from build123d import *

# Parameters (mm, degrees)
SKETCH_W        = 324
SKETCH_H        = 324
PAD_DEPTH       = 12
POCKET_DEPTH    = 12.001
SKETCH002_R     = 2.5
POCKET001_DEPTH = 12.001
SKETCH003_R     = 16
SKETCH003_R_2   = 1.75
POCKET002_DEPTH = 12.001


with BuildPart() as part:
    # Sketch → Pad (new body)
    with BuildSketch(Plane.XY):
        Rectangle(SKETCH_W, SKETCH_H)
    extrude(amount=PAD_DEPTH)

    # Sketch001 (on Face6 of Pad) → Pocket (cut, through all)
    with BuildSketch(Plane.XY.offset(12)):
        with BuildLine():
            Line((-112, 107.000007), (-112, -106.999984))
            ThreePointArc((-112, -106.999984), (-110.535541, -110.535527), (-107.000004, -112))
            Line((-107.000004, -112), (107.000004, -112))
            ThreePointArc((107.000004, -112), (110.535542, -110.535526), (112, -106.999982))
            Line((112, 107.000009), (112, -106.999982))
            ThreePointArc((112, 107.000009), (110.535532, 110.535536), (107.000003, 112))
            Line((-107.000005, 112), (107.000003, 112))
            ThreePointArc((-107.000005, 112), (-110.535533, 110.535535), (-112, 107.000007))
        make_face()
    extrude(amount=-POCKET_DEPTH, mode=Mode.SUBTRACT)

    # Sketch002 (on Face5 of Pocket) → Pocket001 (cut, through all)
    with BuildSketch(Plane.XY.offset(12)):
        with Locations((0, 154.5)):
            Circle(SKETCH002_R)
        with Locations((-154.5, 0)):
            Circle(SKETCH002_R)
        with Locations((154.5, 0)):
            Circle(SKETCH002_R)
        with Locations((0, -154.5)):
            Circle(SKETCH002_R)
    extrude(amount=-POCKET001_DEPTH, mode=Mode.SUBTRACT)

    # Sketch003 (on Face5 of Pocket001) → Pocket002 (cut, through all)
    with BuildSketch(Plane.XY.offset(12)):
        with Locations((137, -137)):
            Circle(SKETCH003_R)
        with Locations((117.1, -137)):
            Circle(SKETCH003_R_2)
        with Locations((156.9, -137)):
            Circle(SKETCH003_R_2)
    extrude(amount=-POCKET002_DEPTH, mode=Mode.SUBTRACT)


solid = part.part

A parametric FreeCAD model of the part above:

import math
import FreeCAD as App
import Part
import Sketcher

V = App.Vector

doc = App.newDocument("Part")
body = doc.addObject("PartDesign::Body", "Body")

sketch1 = body.newObject("Sketcher::SketchObject", "Sketch")
sketch1.AttachmentSupport = (doc.getObject("XY_Plane"), [""])
sketch1.MapMode = "FlatFace"
sketch1.addGeometry([
    Part.LineSegment(V(-162, 162, 0), V(-162, -162, 0)),
    Part.LineSegment(V(-162, -162, 0), V(162, -162, 0)),
    Part.LineSegment(V(162, -162, 0), V(162, 162, 0)),
    Part.LineSegment(V(162, 162, 0), V(-162, 162, 0)),
], False)
sketch1.addConstraint([
    Sketcher.Constraint("Coincident", 0, 2, 1, 1),
    Sketcher.Constraint("Coincident", 1, 2, 2, 1),
    Sketcher.Constraint("Coincident", 2, 2, 3, 1),
    Sketcher.Constraint("Coincident", 3, 2, 0, 1),
    Sketcher.Constraint("Vertical", 0),
    Sketcher.Constraint("Horizontal", 1),
    Sketcher.Constraint("Vertical", 2),
    Sketcher.Constraint("Horizontal", 3),
    Sketcher.Constraint("Symmetric", 0, 2, 2, 2, -1, 1),
    Sketcher.Constraint("Equal", 3, 0),
    Sketcher.Constraint("DistanceX", 1, 1, 1, 2, 324.0),
])
pad1 = body.newObject("PartDesign::Pad", "Pad")
pad1.Profile = sketch1
pad1.Length = 12

sketch2 = body.newObject("Sketcher::SketchObject", "Sketch001")
sketch2.AttachmentSupport = (doc.getObject("XY_Plane"), [""])
sketch2.MapMode = "FlatFace"
sketch2.AttachmentOffset = App.Placement(V(0, 0, 12), App.Rotation())
sketch2.addGeometry([
    Part.LineSegment(V(-112, 107.000007, 0), V(-112, -106.999984, 0)),
    Part.ArcOfCircle(Part.Circle(V(-107, -107, 0), V(0, 0, 1), 5), math.radians(179.999813), math.radians(269.999958)),
    Part.LineSegment(V(-107.000004, -112, 0), V(107.000004, -112, 0)),
    Part.ArcOfCircle(Part.Circle(V(107, -107, 0), V(0, 0, 1), 5), math.radians(-89.999958), math.radians(0.00021)),
    Part.LineSegment(V(112, -106.999982, 0), V(112, 107.000009, 0)),
    Part.ArcOfCircle(Part.Circle(V(107, 107, 0), V(0, 0, 1), 5), math.radians(0.000099), math.radians(89.999969)),
    Part.LineSegment(V(107.000003, 112, 0), V(-107.000005, 112, 0)),
    Part.ArcOfCircle(Part.Circle(V(-107, 107, 0), V(0, 0, 1), 5), math.radians(90.000054), math.radians(179.999923)),
], False)
sketch2.addConstraint([
    Sketcher.Constraint("Coincident", 0, 2, 1, 1),
    Sketcher.Constraint("Tangent", 1, 2, 2, 1),
    Sketcher.Constraint("Tangent", 2, 2, 3, 1),
    Sketcher.Constraint("Coincident", 3, 2, 4, 1),
    Sketcher.Constraint("Tangent", 4, 2, 5, 1),
    Sketcher.Constraint("Tangent", 5, 2, 6, 1),
    Sketcher.Constraint("Tangent", 6, 2, 7, 1),
    Sketcher.Constraint("Tangent", 7, 2, 0, 1),
    Sketcher.Constraint("Vertical", 0),
    Sketcher.Constraint("Horizontal", 2),
    Sketcher.Constraint("Vertical", 4),
    Sketcher.Constraint("Horizontal", 6),
    Sketcher.Constraint("Equal", 1, 3),
    Sketcher.Constraint("Equal", 3, 5),
    Sketcher.Constraint("Equal", 5, 7),
    Sketcher.Constraint("Symmetric", 1, 3, 5, 3, -1, 1),
    Sketcher.Constraint("Horizontal", 0, 2, 3, 2),
    Sketcher.Constraint("Radius", 1, 5.0),
    Sketcher.Constraint("DistanceX", 1, 3, -1, 1, 107.0),
    Sketcher.Constraint("DistanceY", 1, 3, -1, 1, 107.0),
    Sketcher.Constraint("DistanceY", 0, 2, 0, 1, 213.999991),
])
pocket1 = body.newObject("PartDesign::Pocket", "Pocket")
pocket1.Profile = sketch2
pocket1.Type = "ThroughAll"

sketch3 = body.newObject("Sketcher::SketchObject", "Sketch002")
sketch3.AttachmentSupport = (doc.getObject("XY_Plane"), [""])
sketch3.MapMode = "FlatFace"
sketch3.AttachmentOffset = App.Placement(V(0, 0, 12), App.Rotation())
sketch3.addGeometry([
    Part.Circle(V(0, 154.5, 0), V(0, 0, 1), 2.5),
    Part.Circle(V(-154.5, 0, 0), V(0, 0, 1), 2.5),
    Part.Circle(V(154.5, 0, 0), V(0, 0, 1), 2.5),
    Part.Circle(V(0, -154.5, 0), V(0, 0, 1), 2.5),
], False)
sketch3.addConstraint([
    Sketcher.Constraint("Equal", 0, 1),
    Sketcher.Constraint("Equal", 1, 2),
    Sketcher.Constraint("Equal", 2, 3),
    Sketcher.Constraint("Symmetric", 1, 3, 2, 3, -1, 1),
    Sketcher.Constraint("Symmetric", 0, 3, 3, 3, -1, 1),
    Sketcher.Constraint("PointOnObject", 0, 3, -2),
    Sketcher.Constraint("PointOnObject", 1, 3, -1),
    Sketcher.Constraint("Diameter", 0, 5.0),
    Sketcher.Constraint("DistanceX", 1, 3, 2, 3, 309.0),
    Sketcher.Constraint("DistanceY", 3, 3, 0, 3, 309.0),
])
pocket2 = body.newObject("PartDesign::Pocket", "Pocket001")
pocket2.Profile = sketch3
pocket2.Type = "ThroughAll"

sketch4 = body.newObject("Sketcher::SketchObject", "Sketch003")
sketch4.AttachmentSupport = (doc.getObject("XY_Plane"), [""])
sketch4.MapMode = "FlatFace"
sketch4.AttachmentOffset = App.Placement(V(0, 0, 12), App.Rotation())
sketch4.addGeometry([
    Part.Circle(V(137, -137, 0), V(0, 0, 1), 16),
    Part.Circle(V(117.1, -137, 0), V(0, 0, 1), 1.75),
    Part.Circle(V(156.9, -137, 0), V(0, 0, 1), 1.75),
], False)
sketch4.addConstraint([
    Sketcher.Constraint("Equal", 1, 2),
    Sketcher.Constraint("Horizontal", 0, 3, 1, 3),
    Sketcher.Constraint("Horizontal", 1, 3, 2, 3),
    Sketcher.Constraint("Diameter", 0, 32.0),
    Sketcher.Constraint("Diameter", 1, 3.5),
    Sketcher.Constraint("DistanceX", -1, 1, 0, 3, 137.0),
    Sketcher.Constraint("DistanceY", 0, 3, -1, 1, 137.0),
    Sketcher.Constraint("DistanceX", -1, 1, 1, 3, 117.1),
    Sketcher.Constraint("DistanceX", -1, 1, 2, 3, 156.9),
])
pocket3 = body.newObject("PartDesign::Pocket", "Pocket002")
pocket3.Profile = sketch4
pocket3.Type = "ThroughAll"

doc.recompute()
